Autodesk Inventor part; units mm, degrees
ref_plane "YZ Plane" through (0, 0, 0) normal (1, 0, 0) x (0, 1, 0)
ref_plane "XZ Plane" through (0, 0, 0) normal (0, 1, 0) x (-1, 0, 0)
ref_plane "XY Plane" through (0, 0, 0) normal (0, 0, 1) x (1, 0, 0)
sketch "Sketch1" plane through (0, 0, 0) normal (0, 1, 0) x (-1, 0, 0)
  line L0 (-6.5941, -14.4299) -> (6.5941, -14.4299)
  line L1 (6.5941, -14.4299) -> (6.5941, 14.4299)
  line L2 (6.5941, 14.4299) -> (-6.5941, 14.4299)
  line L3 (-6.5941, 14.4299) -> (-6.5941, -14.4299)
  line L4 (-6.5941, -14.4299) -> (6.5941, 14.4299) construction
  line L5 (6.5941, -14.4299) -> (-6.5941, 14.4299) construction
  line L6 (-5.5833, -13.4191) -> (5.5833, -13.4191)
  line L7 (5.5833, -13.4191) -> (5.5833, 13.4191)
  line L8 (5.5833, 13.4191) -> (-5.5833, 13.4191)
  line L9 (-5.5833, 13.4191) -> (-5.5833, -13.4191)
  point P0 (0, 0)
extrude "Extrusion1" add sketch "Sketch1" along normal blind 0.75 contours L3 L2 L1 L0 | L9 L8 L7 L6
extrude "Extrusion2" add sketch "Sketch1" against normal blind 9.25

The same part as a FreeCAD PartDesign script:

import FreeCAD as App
import Part
import Sketcher
from FreeCAD import Vector
Q = App.Units.Quantity

doc = App.newDocument("Part")
body = doc.addObject("PartDesign::Body", "Body")

# Sketch on XZ plane
sketch1 = body.newObject("Sketcher::SketchObject", "Sketch")
sketch1.AttachmentSupport = (doc.getObject("XZ_Plane"), [""])
sketch1.MapMode = "FlatFace"
sketch1.addGeometry(Part.LineSegment(Vector(7, 14, 0), Vector(7, -14, 0)), False)
sketch1.addGeometry(Part.LineSegment(Vector(7, -14, 0), Vector(-7, -14, 0)), False)
sketch1.addGeometry(Part.LineSegment(Vector(-7, -14, 0), Vector(-7, 14, 0)), False)
sketch1.addGeometry(Part.LineSegment(Vector(-7, 14, 0), Vector(7, 14, 0)), False)
sketch1.addConstraint(Sketcher.Constraint("Coincident", 0, 2, 1, 1))
sketch1.addConstraint(Sketcher.Constraint("Coincident", 1, 2, 2, 1))
sketch1.addConstraint(Sketcher.Constraint("Coincident", 2, 2, 3, 1))
sketch1.addConstraint(Sketcher.Constraint("Coincident", 3, 2, 0, 1))
sketch1.addConstraint(Sketcher.Constraint("Vertical", 0))
sketch1.addConstraint(Sketcher.Constraint("Horizontal", 1))
sketch1.addConstraint(Sketcher.Constraint("Vertical", 2))
sketch1.addConstraint(Sketcher.Constraint("Horizontal", 3))
sketch1.addConstraint(Sketcher.Constraint("Symmetric", 0, 2, 2, 2, -1, 1))
sketch1.addConstraint(Sketcher.Constraint("DistanceY", 0, 2, -1, 1, Q("14.43 mm")))
sketch1.addConstraint(Sketcher.Constraint("DistanceX", 1, 2, 1, 1, Q("13.1882 mm")))
pad1 = body.newObject("PartDesign::Pad", "Pad")
pad1.Profile = sketch1
pad1.Length = 0.75
pad1.Reversed = True

# Sketch on XZ plane
sketch2 = body.newObject("Sketcher::SketchObject", "Sketch001")
sketch2.AttachmentSupport = (doc.getObject("XZ_Plane"), [""])
sketch2.MapMode = "FlatFace"
sketch2.addGeometry(Part.LineSegment(Vector(7, 14, 0), Vector(7, -14, 0)), False)
sketch2.addGeometry(Part.LineSegment(Vector(7, -14, 0), Vector(-7, -14, 0)), False)
sketch2.addGeometry(Part.LineSegment(Vector(-7, -14, 0), Vector(-7, 14, 0)), False)
sketch2.addGeometry(Part.LineSegment(Vector(-7, 14, 0), Vector(7, 14, 0)), False)
sketch2.addGeometry(Part.LineSegment(Vector(-6, -13, 0), Vector(6, -13, 0)), False)
sketch2.addGeometry(Part.LineSegment(Vector(6, -13, 0), Vector(6, 13, 0)), False)
sketch2.addGeometry(Part.LineSegment(Vector(6, 13, 0), Vector(-6, 13, 0)), False)
sketch2.addGeometry(Part.LineSegment(Vector(-6, 13, 0), Vector(-6, -13, 0)), False)
sketch2.addConstraint(Sketcher.Constraint("Coincident", 0, 2, 1, 1))
sketch2.addConstraint(Sketcher.Constraint("Coincident", 1, 2, 2, 1))
sketch2.addConstraint(Sketcher.Constraint("Coincident", 2, 2, 3, 1))
sketch2.addConstraint(Sketcher.Constraint("Coincident", 3, 2, 0, 1))
sketch2.addConstraint(Sketcher.Constraint("Coincident", 4, 2, 5, 1))
sketch2.addConstraint(Sketcher.Constraint("Coincident", 5, 2, 6, 1))
sketch2.addConstraint(Sketcher.Constraint("Coincident", 6, 2, 7, 1))
sketch2.addConstraint(Sketcher.Constraint("Coincident", 7, 2, 4, 1))
sketch2.addConstraint(Sketcher.Constraint("Vertical", 0))
sketch2.addConstraint(Sketcher.Constraint("Horizontal", 1))
sketch2.addConstraint(Sketcher.Constraint("Vertical", 2))
sketch2.addConstraint(Sketcher.Constraint("Horizontal", 3))
sketch2.addConstraint(Sketcher.Constraint("Horizontal", 4))
sketch2.addConstraint(Sketcher.Constraint("Vertical", 5))
sketch2.addConstraint(Sketcher.Constraint("Horizontal", 6))
sketch2.addConstraint(Sketcher.Constraint("Vertical", 7))
sketch2.addConstraint(Sketcher.Constraint("Symmetric", 0, 2, 2, 2, -1, 1))
sketch2.addConstraint(Sketcher.Constraint("Symmetric", 4, 2, 6, 2, -1, 1))
sketch2.addConstraint(Sketcher.Constraint("DistanceY", 0, 2, -1, 1, Q("14.43 mm")))
sketch2.addConstraint(Sketcher.Constraint("DistanceX", 1, 2, 1, 1, Q("13.1882 mm")))
sketch2.addConstraint(Sketcher.Constraint("DistanceX", 4, 1, 4, 2, Q("11.1666 mm")))
sketch2.addConstraint(Sketcher.Constraint("DistanceY", 5, 1, 5, 2, Q("26.8382 mm")))
pad2 = body.newObject("PartDesign::Pad", "Pad001")
pad2.Profile = sketch2
pad2.Length = 9.25

doc.recompute()
